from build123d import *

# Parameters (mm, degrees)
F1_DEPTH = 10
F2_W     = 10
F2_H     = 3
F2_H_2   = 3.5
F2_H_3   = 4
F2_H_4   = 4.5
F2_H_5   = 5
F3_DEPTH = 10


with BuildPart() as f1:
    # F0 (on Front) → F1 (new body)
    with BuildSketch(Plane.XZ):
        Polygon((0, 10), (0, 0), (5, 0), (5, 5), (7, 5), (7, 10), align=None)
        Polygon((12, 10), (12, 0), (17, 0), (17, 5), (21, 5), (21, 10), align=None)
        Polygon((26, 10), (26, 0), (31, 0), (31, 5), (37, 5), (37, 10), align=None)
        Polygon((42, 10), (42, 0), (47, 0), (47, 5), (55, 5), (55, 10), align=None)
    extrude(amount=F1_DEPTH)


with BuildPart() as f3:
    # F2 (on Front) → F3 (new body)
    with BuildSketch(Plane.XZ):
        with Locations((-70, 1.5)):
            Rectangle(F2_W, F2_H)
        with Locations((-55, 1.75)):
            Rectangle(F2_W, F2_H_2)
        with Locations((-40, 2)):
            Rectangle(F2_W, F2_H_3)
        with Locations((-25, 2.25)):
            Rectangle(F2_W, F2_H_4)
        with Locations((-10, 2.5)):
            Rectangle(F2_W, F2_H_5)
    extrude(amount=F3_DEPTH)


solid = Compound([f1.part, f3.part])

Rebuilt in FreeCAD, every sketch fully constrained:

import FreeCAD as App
import Part
import Sketcher

V = App.Vector


def add_polygon(sketch, points):
    """Adds a closed chain of lines whose ends are joined by coincident constraints."""
    first, n = sketch.GeometryCount, len(points)
    for a, b in zip(points, points[1:] + points[:1]):
        sketch.addGeometry(Part.LineSegment(App.Vector(*a, 0), App.Vector(*b, 0)), False)
    for i in range(n):
        sketch.addConstraint(Sketcher.Constraint("Coincident", first + i, 2, first + (i + 1) % n, 1))

doc = App.newDocument("Part")
body = doc.addObject("PartDesign::Body", "Body")
body.AllowCompound = True

sketch1 = body.newObject("Sketcher::SketchObject", "Sketch")
sketch1.AttachmentSupport = (doc.getObject("XZ_Plane"), [""])
sketch1.MapMode = "FlatFace"
add_polygon(sketch1, [(0, 10), (0, 0), (5, 0), (5, 5), (7, 5), (7, 10)])
add_polygon(sketch1, [(12, 10), (12, 0), (17, 0), (17, 5), (21, 5), (21, 10)])
add_polygon(sketch1, [(26, 10), (26, 0), (31, 0), (31, 5), (37, 5), (37, 10)])
add_polygon(sketch1, [(42, 10), (42, 0), (47, 0), (47, 5), (55, 5), (55, 10)])
sketch1.addConstraint([
    Sketcher.Constraint("Vertical", 0),
    Sketcher.Constraint("Horizontal", 1),
    Sketcher.Constraint("Vertical", 2),
    Sketcher.Constraint("Horizontal", 3),
    Sketcher.Constraint("Vertical", 4),
    Sketcher.Constraint("Horizontal", 5),
    Sketcher.Constraint("Vertical", 6),
    Sketcher.Constraint("Horizontal", 7),
    Sketcher.Constraint("Vertical", 8),
    Sketcher.Constraint("Horizontal", 9),
    Sketcher.Constraint("Vertical", 10),
    Sketcher.Constraint("Horizontal", 11),
    Sketcher.Constraint("Vertical", 12),
    Sketcher.Constraint("Horizontal", 13),
    Sketcher.Constraint("Vertical", 14),
    Sketcher.Constraint("Horizontal", 15),
    Sketcher.Constraint("Vertical", 16),
    Sketcher.Constraint("Horizontal", 17),
    Sketcher.Constraint("Vertical", 18),
    Sketcher.Constraint("Horizontal", 19),
    Sketcher.Constraint("Vertical", 20),
    Sketcher.Constraint("Horizontal", 21),
    Sketcher.Constraint("Vertical", 22),
    Sketcher.Constraint("Horizontal", 23),
    Sketcher.Constraint("Coincident", 0, 2, -1, 1),
    Sketcher.Constraint("PointOnObject", 6, 2, -1),
    Sketcher.Constraint("PointOnObject", 12, 2, -1),
    Sketcher.Constraint("PointOnObject", 18, 2, -1),
    Sketcher.Constraint("Horizontal", 3, 2, 8, 2),
    Sketcher.Constraint("Horizontal", 5, 2, 10, 2),
    Sketcher.Constraint("Horizontal", 9, 2, 14, 2),
    Sketcher.Constraint("Horizontal", 11, 2, 16, 2),
    Sketcher.Constraint("Horizontal", 15, 2, 20, 2),
    Sketcher.Constraint("Horizontal", 17, 2, 22, 2),
    Sketcher.Constraint("Equal", 1, 7),
    Sketcher.Constraint("Equal", 7, 13),
    Sketcher.Constraint("Equal", 13, 19),
    Sketcher.Constraint("Equal", 19, 2),
    Sketcher.Constraint("Equal", 2, 4),
    Sketcher.Constraint("DistanceX", 1, 1, 1, 2, 5.0),
    Sketcher.Constraint("DistanceX", 3, 1, 3, 2, 2.0),
    Sketcher.Constraint("DistanceX", 9, 1, 9, 2, 4.0),
    Sketcher.Constraint("DistanceX", 15, 1, 15, 2, 6.0),
    Sketcher.Constraint("DistanceX", 21, 1, 21, 2, 8.0),
    Sketcher.Constraint("DistanceX", -1, 1, 6, 2, 12.0),
    Sketcher.Constraint("DistanceX", -1, 1, 12, 2, 26.0),
    Sketcher.Constraint("DistanceX", -1, 1, 18, 2, 42.0),
])
pad1 = body.newObject("PartDesign::Pad", "Pad")
pad1.Profile = sketch1
pad1.Length = 10
body2 = doc.addObject("PartDesign::Body", "Body001")
body2.AllowCompound = True

sketch2 = body2.newObject("Sketcher::SketchObject", "Sketch001")
sketch2.AttachmentSupport = (doc.getObject("XZ_Plane001"), [""])
sketch2.MapMode = "FlatFace"
add_polygon(sketch2, [(-75, 3), (-75, 0), (-65, 0), (-65, 3)])
add_polygon(sketch2, [(-60, 3.5), (-60, 0), (-50, 0), (-50, 3.5)])
add_polygon(sketch2, [(-45, 4), (-45, 0), (-35, 0), (-35, 4)])
add_polygon(sketch2, [(-30, 4.5), (-30, 0), (-20, 0), (-20, 4.5)])
add_polygon(sketch2, [(-15, 5), (-15, 0), (-5, 0), (-5, 5)])
sketch2.addConstraint([
    Sketcher.Constraint("Vertical", 0),
    Sketcher.Constraint("Horizontal", 1),
    Sketcher.Constraint("Vertical", 2),
    Sketcher.Constraint("Horizontal", 3),
    Sketcher.Constraint("Vertical", 4),
    Sketcher.Constraint("Horizontal", 5),
    Sketcher.Constraint("Vertical", 6),
    Sketcher.Constraint("Horizontal", 7),
    Sketcher.Constraint("Vertical", 8),
    Sketcher.Constraint("Horizontal", 9),
    Sketcher.Constraint("Vertical", 10),
    Sketcher.Constraint("Horizontal", 11),
    Sketcher.Constraint("Vertical", 12),
    Sketcher.Constraint("Horizontal", 13),
    Sketcher.Constraint("Vertical", 14),
    Sketcher.Constraint("Horizontal", 15),
    Sketcher.Constraint("Vertical", 16),
    Sketcher.Constraint("Horizontal", 17),
    Sketcher.Constraint("Vertical", 18),
    Sketcher.Constraint("Horizontal", 19),
    Sketcher.Constraint("PointOnObject", 0, 2, -1),
    Sketcher.Constraint("PointOnObject", 4, 2, -1),
    Sketcher.Constraint("PointOnObject", 8, 2, -1),
    Sketcher.Constraint("PointOnObject", 12, 2, -1),
    Sketcher.Constraint("PointOnObject", 16, 2, -1),
    Sketcher.Constraint("Equal", 3, 5),
    Sketcher.Constraint("Equal", 7, 9),
    Sketcher.Constraint("Equal", 11, 13),
    Sketcher.Constraint("Equal", 15, 17),
    Sketcher.Constraint("DistanceX", 1, 1, 1, 2, 10.0),
    Sketcher.Constraint("DistanceY", 0, 2, 0, 1, 3.0),
    Sketcher.Constraint("DistanceY", 8, 2, 8, 1, 4.0),
    Sketcher.Constraint("DistanceY", 16, 2, 16, 1, 5.0),
    Sketcher.Constraint("DistanceY", 4, 2, 4, 1, 3.5),
    Sketcher.Constraint("DistanceY", 12, 2, 12, 1, 4.5),
    Sketcher.Constraint("DistanceX", 0, 2, -1, 1, 75.0),
    Sketcher.Constraint("DistanceX", 4, 2, -1, 1, 60.0),
    Sketcher.Constraint("DistanceX", 8, 2, -1, 1, 45.0),
    Sketcher.Constraint("DistanceX", 12, 2, -1, 1, 30.0),
    Sketcher.Constraint("DistanceX", 16, 2, -1, 1, 15.0),
])
pad2 = body2.newObject("PartDesign::Pad", "Pad001")
pad2.Profile = sketch2
pad2.Length = 10

doc.recompute()
